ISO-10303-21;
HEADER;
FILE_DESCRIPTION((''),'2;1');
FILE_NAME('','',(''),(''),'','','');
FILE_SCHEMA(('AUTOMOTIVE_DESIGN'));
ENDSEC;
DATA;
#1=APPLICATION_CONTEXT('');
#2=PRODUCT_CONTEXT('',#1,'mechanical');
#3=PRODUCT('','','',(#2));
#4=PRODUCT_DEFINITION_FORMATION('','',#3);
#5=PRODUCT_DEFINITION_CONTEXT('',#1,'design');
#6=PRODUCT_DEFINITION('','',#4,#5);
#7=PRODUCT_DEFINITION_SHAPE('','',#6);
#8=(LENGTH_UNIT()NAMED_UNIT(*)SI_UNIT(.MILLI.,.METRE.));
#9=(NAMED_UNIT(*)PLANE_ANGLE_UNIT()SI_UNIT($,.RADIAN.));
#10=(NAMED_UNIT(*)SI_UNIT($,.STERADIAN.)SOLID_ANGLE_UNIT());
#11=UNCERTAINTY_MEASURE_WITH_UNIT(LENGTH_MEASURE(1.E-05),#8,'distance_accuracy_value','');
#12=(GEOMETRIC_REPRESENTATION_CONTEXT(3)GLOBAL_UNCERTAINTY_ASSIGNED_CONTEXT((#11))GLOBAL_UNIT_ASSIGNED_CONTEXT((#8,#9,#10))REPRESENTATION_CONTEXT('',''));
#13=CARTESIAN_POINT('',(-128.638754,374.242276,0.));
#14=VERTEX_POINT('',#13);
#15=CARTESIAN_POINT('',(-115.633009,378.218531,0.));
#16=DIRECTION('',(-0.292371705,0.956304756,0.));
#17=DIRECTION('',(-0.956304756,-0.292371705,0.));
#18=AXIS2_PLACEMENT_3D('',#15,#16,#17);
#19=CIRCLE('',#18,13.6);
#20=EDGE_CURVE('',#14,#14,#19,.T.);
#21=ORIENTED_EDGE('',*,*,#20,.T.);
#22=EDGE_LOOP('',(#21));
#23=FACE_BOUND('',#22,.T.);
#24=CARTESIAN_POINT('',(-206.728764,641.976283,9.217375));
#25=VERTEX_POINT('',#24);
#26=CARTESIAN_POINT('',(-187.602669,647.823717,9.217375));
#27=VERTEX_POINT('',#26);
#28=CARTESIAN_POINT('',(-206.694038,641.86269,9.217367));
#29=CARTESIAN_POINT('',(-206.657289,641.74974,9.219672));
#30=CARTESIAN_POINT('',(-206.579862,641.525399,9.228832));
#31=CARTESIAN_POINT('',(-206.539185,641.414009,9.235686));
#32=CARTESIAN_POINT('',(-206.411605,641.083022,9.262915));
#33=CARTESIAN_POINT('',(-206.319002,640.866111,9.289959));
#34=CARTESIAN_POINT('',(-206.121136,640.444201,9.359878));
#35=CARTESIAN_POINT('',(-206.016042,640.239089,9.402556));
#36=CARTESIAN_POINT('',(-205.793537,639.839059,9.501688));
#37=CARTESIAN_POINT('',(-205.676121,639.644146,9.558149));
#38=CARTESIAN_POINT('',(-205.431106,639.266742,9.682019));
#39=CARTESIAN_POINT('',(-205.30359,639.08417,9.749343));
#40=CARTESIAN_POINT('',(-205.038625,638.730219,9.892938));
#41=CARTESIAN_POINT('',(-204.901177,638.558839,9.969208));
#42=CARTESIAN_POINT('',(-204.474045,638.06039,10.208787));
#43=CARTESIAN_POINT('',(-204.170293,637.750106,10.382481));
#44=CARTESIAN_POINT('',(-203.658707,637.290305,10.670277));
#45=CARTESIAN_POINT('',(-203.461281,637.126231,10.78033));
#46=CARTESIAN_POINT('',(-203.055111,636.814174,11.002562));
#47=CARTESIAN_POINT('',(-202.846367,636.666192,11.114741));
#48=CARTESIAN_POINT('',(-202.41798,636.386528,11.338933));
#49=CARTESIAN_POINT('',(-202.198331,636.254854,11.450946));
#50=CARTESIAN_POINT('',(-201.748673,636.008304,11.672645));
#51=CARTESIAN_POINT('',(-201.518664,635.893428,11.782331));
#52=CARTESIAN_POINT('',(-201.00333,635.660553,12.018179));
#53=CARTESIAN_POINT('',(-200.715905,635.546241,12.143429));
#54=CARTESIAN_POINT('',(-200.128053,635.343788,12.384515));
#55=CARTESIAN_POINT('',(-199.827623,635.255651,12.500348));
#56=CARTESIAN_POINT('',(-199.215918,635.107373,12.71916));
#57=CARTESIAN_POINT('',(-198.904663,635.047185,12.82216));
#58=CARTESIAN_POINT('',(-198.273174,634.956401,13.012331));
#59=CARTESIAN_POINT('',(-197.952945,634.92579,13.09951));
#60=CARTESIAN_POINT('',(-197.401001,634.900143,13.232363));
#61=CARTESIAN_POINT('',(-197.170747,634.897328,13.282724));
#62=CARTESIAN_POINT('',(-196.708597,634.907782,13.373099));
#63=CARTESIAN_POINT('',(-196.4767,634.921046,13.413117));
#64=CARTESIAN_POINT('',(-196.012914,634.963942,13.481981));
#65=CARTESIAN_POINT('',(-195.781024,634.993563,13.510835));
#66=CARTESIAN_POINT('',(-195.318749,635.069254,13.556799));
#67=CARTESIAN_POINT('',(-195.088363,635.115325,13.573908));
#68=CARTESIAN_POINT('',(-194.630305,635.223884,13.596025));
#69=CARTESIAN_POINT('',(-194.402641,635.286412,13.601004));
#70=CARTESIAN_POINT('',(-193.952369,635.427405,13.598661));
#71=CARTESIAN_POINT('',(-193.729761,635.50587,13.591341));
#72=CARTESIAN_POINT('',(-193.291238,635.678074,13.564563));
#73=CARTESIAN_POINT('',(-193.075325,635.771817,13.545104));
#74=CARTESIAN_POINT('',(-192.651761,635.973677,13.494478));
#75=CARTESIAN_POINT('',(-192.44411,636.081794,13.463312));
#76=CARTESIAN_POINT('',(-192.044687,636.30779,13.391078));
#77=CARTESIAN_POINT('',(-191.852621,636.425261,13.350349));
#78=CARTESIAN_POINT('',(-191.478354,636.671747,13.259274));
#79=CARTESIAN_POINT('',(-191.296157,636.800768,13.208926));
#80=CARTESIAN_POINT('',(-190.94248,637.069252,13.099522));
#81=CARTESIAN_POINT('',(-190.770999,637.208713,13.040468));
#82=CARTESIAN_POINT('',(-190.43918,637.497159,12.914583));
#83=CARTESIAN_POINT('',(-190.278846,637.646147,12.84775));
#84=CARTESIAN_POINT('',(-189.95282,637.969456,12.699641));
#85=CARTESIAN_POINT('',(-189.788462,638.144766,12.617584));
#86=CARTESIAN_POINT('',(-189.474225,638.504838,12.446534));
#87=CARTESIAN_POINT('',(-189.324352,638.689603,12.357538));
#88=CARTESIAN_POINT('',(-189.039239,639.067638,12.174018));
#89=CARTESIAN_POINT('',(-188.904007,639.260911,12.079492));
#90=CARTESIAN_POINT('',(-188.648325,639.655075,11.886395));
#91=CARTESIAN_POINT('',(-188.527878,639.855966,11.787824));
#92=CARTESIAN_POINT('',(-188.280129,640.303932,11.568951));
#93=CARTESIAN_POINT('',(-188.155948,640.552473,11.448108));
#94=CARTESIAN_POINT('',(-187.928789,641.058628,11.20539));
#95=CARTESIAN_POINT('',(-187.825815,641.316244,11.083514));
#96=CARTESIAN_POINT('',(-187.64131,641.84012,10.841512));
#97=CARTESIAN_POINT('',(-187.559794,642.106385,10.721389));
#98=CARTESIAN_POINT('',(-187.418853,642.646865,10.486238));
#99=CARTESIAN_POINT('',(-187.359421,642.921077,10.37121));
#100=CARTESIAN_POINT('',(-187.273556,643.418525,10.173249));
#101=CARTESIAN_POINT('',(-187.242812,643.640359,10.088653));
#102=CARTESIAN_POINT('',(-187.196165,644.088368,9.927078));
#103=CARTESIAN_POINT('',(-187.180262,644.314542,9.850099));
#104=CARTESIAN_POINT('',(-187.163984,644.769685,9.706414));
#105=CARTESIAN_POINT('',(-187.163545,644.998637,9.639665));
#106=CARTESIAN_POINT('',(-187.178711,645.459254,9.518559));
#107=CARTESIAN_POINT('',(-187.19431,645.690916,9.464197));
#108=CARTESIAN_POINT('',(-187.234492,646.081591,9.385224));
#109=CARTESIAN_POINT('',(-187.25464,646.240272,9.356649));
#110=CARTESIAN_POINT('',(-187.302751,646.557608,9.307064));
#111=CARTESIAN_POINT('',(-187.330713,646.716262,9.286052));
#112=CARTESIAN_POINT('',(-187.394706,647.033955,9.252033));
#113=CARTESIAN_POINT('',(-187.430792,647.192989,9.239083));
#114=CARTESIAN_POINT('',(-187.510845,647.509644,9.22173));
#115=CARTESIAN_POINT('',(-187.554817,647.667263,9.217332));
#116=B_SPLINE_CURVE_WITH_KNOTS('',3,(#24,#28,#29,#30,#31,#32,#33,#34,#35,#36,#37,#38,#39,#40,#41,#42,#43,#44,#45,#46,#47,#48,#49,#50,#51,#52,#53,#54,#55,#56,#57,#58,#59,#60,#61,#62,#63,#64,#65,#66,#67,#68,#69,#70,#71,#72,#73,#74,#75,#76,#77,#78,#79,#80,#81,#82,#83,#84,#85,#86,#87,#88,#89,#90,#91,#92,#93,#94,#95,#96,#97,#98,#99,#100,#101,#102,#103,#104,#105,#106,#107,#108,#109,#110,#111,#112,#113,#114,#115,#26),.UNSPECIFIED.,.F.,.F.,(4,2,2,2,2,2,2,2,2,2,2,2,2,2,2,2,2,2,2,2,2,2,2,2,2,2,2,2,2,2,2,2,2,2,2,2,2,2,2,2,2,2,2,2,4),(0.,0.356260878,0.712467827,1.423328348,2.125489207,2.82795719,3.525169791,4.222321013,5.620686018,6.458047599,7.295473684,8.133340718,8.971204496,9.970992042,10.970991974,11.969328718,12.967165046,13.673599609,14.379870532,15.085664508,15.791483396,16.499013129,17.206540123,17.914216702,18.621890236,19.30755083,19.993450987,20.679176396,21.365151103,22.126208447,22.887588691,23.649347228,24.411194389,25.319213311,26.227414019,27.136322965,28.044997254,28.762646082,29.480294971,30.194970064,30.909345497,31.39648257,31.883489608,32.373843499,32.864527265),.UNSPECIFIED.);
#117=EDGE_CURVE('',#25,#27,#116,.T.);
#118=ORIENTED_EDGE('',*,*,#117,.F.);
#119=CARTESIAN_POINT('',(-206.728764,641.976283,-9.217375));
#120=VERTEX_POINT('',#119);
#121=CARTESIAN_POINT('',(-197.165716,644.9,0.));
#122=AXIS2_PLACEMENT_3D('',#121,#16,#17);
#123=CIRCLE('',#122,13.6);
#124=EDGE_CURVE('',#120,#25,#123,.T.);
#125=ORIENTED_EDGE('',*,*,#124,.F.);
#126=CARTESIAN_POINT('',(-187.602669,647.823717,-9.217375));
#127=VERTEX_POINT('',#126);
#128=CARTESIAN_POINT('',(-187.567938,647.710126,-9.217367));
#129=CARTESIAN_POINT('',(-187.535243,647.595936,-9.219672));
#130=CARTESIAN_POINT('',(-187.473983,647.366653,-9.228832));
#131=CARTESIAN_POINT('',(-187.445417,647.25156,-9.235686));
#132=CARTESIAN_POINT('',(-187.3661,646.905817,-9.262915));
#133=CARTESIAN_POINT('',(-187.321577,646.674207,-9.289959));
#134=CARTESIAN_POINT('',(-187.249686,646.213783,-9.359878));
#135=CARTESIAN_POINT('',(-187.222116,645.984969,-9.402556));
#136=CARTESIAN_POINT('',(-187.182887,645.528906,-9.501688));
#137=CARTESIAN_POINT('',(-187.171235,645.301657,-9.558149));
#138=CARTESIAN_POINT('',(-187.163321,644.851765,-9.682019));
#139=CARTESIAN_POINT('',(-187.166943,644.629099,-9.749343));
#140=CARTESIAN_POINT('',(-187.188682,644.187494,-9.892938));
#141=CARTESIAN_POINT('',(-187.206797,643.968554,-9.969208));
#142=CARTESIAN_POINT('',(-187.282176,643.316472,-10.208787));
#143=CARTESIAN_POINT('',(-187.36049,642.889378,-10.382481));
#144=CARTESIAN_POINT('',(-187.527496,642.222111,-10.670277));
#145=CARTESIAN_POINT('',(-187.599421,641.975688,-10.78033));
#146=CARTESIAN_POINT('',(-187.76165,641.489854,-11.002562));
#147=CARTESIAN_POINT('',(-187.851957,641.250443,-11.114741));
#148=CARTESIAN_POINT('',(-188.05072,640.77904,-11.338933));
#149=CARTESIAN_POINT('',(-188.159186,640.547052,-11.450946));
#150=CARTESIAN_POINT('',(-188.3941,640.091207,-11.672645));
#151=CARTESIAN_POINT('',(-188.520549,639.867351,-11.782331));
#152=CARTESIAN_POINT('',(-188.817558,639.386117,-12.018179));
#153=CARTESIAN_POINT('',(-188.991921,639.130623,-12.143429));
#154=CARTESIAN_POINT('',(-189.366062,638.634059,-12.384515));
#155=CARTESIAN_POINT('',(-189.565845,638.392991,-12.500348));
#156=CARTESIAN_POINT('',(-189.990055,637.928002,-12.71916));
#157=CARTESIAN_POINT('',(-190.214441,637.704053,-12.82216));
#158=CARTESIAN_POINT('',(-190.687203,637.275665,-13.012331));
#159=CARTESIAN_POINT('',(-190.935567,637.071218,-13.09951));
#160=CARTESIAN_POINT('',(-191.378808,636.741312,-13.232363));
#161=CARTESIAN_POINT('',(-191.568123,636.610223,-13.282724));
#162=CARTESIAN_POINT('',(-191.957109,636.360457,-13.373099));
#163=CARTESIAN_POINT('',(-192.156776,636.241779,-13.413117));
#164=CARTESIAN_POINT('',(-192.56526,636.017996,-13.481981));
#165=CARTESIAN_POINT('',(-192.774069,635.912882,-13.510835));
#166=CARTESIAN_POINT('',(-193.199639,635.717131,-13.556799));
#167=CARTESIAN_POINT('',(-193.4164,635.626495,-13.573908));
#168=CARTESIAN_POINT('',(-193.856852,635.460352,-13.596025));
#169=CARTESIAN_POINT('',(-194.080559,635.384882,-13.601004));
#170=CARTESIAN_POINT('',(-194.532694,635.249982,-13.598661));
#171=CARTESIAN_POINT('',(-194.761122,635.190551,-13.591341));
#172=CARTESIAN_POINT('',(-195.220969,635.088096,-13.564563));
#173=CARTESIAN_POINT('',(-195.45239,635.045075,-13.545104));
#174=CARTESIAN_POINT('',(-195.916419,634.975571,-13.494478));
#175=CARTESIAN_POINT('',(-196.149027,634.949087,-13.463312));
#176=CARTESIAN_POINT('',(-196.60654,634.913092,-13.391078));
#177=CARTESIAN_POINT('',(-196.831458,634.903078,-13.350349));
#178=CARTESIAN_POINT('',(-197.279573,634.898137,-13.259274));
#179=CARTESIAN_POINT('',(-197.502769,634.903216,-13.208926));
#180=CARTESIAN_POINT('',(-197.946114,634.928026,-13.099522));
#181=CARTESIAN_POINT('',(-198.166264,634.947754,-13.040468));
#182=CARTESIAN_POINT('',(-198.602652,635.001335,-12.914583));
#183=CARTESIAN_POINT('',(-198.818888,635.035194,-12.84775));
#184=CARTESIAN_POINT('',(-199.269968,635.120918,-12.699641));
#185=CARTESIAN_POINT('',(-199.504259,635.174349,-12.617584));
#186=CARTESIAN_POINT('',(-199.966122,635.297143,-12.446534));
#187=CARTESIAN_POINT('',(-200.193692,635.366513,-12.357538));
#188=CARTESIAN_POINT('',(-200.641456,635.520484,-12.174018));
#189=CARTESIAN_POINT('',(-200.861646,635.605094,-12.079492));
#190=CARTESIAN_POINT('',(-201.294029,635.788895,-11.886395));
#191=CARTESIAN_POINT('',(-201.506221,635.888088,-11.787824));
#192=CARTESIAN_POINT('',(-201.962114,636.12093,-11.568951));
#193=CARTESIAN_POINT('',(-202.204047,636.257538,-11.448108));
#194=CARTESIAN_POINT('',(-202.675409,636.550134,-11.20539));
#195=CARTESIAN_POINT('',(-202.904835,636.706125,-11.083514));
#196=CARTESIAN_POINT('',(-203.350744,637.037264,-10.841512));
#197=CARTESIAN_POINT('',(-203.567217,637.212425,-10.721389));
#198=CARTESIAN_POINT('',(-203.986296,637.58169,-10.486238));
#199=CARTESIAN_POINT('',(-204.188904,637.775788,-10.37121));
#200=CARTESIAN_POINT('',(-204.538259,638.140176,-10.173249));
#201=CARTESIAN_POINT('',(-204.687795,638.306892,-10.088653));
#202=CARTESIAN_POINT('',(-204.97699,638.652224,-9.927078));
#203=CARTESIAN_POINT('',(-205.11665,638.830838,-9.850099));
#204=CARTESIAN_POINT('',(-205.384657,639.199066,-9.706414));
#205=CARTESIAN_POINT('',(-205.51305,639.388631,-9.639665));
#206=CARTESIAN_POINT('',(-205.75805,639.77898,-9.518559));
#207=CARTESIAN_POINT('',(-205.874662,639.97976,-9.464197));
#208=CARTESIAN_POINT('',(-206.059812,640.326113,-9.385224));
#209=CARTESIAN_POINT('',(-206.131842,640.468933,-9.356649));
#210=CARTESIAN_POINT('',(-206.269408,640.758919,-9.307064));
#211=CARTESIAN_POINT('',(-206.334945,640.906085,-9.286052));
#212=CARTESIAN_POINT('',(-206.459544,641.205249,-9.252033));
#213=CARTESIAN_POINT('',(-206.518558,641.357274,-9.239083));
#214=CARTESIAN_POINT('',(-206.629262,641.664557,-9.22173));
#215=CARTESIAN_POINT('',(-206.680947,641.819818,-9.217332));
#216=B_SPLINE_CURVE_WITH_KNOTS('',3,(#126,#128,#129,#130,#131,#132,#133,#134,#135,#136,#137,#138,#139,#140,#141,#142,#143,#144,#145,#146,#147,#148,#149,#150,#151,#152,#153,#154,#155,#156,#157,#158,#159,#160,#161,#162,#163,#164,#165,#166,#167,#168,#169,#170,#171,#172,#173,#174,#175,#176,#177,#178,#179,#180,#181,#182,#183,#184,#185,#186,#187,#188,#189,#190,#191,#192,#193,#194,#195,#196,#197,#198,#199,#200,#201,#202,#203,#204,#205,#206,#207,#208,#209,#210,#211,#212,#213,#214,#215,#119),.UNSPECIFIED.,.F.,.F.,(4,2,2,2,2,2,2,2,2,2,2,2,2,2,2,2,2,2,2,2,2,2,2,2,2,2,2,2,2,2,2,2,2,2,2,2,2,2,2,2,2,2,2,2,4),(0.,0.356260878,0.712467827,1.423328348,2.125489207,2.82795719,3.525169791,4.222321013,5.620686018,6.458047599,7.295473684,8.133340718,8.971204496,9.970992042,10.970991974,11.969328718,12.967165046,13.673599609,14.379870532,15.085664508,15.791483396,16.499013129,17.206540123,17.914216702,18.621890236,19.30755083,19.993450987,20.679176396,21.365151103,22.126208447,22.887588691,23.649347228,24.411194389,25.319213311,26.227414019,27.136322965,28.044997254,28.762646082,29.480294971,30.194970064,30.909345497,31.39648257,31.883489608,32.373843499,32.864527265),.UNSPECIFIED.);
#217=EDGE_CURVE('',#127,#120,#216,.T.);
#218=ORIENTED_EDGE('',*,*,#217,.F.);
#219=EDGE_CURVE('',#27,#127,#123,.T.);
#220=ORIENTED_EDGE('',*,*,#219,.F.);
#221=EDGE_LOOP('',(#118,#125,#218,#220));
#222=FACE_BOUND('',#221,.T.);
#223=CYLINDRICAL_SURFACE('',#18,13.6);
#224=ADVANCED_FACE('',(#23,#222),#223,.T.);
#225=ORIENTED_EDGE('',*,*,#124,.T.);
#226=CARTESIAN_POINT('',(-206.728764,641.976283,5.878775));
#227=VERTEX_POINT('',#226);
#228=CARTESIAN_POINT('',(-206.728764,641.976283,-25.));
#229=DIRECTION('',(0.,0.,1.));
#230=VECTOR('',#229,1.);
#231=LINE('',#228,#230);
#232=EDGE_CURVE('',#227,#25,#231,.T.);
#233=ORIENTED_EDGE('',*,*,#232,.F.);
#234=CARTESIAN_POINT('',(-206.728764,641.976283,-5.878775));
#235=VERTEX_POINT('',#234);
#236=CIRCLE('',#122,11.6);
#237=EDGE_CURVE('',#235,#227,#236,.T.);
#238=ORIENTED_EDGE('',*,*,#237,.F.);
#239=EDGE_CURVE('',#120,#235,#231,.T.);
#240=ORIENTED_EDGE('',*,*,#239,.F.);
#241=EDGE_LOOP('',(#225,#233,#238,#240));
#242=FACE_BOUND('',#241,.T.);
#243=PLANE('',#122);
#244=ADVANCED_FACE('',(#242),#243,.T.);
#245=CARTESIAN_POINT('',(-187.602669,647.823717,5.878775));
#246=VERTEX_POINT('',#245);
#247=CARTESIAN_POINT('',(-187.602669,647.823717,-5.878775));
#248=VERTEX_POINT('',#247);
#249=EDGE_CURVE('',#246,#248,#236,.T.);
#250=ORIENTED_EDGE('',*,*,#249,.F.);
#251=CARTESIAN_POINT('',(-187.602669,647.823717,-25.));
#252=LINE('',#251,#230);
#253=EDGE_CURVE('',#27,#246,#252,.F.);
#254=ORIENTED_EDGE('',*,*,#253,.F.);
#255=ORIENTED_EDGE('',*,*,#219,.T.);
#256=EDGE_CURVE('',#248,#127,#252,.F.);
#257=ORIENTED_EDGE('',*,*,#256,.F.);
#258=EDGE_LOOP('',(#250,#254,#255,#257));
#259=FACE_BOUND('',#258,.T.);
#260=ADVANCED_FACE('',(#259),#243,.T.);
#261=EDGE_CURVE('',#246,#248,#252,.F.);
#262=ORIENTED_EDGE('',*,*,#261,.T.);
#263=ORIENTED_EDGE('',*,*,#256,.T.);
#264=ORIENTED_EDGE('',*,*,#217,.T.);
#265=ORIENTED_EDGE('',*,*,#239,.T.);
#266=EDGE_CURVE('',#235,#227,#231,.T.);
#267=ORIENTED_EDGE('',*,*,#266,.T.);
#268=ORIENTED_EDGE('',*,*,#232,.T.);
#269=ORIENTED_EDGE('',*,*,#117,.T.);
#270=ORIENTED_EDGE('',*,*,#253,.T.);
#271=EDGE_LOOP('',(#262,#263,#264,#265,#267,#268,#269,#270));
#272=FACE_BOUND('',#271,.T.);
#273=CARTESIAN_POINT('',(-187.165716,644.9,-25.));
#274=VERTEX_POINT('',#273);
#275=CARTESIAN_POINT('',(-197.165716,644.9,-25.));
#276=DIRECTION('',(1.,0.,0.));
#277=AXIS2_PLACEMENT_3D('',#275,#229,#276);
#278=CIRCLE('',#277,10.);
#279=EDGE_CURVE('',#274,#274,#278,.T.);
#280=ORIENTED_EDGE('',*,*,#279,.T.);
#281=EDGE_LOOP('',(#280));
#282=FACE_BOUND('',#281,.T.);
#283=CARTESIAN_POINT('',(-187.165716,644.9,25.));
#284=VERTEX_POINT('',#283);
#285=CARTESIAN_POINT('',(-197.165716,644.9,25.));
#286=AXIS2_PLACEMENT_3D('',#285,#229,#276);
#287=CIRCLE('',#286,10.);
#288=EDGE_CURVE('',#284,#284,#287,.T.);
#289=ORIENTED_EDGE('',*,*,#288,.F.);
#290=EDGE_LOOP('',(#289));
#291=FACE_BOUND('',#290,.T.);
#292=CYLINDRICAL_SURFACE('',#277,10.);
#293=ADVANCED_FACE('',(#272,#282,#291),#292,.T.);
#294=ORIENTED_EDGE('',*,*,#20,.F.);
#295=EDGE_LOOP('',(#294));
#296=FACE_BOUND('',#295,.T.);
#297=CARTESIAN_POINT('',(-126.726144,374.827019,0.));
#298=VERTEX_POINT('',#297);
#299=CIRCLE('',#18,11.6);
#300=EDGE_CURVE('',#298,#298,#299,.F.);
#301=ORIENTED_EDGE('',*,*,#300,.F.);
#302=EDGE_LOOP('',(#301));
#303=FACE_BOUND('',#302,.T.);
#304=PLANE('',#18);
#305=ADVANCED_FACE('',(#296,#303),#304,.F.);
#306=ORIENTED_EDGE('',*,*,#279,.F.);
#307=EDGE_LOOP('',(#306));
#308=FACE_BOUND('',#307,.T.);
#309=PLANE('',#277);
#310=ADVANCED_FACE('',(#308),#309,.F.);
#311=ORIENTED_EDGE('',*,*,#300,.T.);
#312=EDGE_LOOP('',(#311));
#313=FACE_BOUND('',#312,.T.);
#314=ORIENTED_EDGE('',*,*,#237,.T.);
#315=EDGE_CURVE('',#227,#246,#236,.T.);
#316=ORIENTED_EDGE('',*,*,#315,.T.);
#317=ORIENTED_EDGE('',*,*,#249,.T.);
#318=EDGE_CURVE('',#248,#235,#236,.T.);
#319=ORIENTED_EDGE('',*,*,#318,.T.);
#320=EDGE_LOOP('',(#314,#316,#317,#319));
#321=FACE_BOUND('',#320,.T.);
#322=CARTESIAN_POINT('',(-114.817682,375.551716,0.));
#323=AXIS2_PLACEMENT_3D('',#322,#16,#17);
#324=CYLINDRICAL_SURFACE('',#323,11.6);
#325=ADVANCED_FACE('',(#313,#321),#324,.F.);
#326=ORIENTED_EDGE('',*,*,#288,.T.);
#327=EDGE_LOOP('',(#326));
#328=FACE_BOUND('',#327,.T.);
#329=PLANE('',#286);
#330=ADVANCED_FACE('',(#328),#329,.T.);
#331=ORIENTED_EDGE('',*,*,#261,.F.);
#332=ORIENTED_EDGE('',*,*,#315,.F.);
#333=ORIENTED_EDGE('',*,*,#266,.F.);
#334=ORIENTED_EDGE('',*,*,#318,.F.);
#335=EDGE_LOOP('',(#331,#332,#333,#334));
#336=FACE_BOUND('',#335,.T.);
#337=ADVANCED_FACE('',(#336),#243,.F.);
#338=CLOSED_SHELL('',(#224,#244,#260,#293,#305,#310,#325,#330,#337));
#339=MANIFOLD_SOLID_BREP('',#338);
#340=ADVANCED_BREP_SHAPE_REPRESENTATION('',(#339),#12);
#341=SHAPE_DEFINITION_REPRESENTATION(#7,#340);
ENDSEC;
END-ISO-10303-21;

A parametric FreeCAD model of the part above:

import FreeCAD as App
import Part
import Sketcher

V = App.Vector
Q = App.Units.Quantity

doc = App.newDocument("Part")
body = doc.addObject("PartDesign::Body", "Body")

# Sketch on an angled plane
sketch1 = body.newObject("Sketcher::SketchObject", "Sketch")
sketch1.Placement = App.Placement(V(-115.633009, 378.218531, 0), App.Rotation(V(0.956304756, 0.292371705, 0), V(0, 0, -1), V(-0.292371705, 0.956304756, 0), "ZXY"))
sketch1.addGeometry(Part.Circle(V(0, 0, 0), V(0, 0, 1), 13.6), False)
sketch1.addConstraint([
    Sketcher.Constraint("Coincident", 0, 3, -1, 1),
    Sketcher.Constraint("Diameter", 0, Q("27.2 mm")),
])

# Sketch on an angled plane
sketch2 = body.newObject("Sketcher::SketchObject", "Sketch001")
sketch2.Placement = App.Placement(V(0, 0, 0), App.Rotation(V(-0.292371705, 0.956304756, 0), V(0, 0, 1), V(0.956304756, 0.292371705, 0), "ZXY"))
sketch2.addGeometry(Part.LineSegment(V(395.5, 0, 0), V(674.366614, 0, 0)), False)
sketch2.addConstraint([
    Sketcher.Constraint("Horizontal", 0),
    Sketcher.Constraint("PointOnObject", 0, 1, -1),
    Sketcher.Constraint("DistanceX", -1, 1, 0, 1, Q("395.5 mm")),
    Sketcher.Constraint("DistanceX", 0, 1, 0, 2, Q("278.866614 mm")),
])
doc.recompute()

additivepipe = body.newObject("PartDesign::AdditivePipe", "AdditivePipe")
additivepipe.Profile = sketch1
additivepipe.Spine = (sketch2, ["Edge1"])

# Sketch on XY plane
sketch3 = body.newObject("Sketcher::SketchObject", "Sketch002")
sketch3.AttachmentSupport = (doc.getObject("XY_Plane"), [""])
sketch3.MapMode = "FlatFace"
sketch3.AttachmentOffset = App.Placement(V(0, 0, -25), App.Rotation())
sketch3.addGeometry(Part.Circle(V(-197.165716, 644.9, 0), V(0, 0, 1), 10), False)
sketch3.addConstraint([
    Sketcher.Constraint("Diameter", 0, Q("20 mm")),
    Sketcher.Constraint("DistanceY", -1, 1, 0, 3, Q("644.9 mm")),
    Sketcher.Constraint("DistanceX", 0, 3, -1, 1, Q("197.165716 mm")),
])

# Sketch on XZ plane
sketch4 = body.newObject("Sketcher::SketchObject", "Sketch003")
sketch4.AttachmentSupport = (doc.getObject("XZ_Plane"), [""])
sketch4.MapMode = "FlatFace"
sketch4.AttachmentOffset = App.Placement(V(0, 0, -644.9), App.Rotation())
sketch4.addGeometry(Part.LineSegment(V(-197.165716, -25, 0), V(-197.165716, 25, 0)), False)
sketch4.addConstraint([
    Sketcher.Constraint("Vertical", 0),
    Sketcher.Constraint("DistanceY", 0, 1, 0, 2, Q("50 mm")),
    Sketcher.Constraint("DistanceY", 0, 1, -1, 1, Q("25 mm")),
    Sketcher.Constraint("DistanceX", 0, 1, -1, 1, Q("197.165716 mm")),
])
doc.recompute()

additivepipe2 = body.newObject("PartDesign::AdditivePipe", "AdditivePipe001")
additivepipe2.Profile = sketch3
additivepipe2.Spine = (sketch4, ["Edge1"])

# Sketch on an angled plane
sketch5 = body.newObject("Sketcher::SketchObject", "Sketch004")
sketch5.Placement = App.Placement(V(-115.633009, 378.218531, 0), App.Rotation(V(0.956304756, 0.292371705, 0), V(0, 0, -1), V(-0.292371705, 0.956304756, 0), "ZXY"))
sketch5.addGeometry(Part.Circle(V(0, 0, 0), V(0, 0, 1), 11.6), False)
sketch5.addConstraint([
    Sketcher.Constraint("Coincident", 0, 3, -1, 1),
    Sketcher.Constraint("Diameter", 0, Q("23.2 mm")),
])

# Sketch on an angled plane
sketch6 = body.newObject("Sketcher::SketchObject", "Sketch005")
sketch6.Placement = App.Placement(V(0, 0, 0), App.Rotation(V(-0.292371705, 0.956304756, 0), V(0, 0, 1), V(0.956304756, 0.292371705, 0), "ZXY"))
sketch6.addGeometry(Part.LineSegment(V(395.5, 0, 0), V(674.366614, 0, 0)), False)
sketch6.addConstraint([
    Sketcher.Constraint("Horizontal", 0),
    Sketcher.Constraint("PointOnObject", 0, 1, -1),
    Sketcher.Constraint("DistanceX", -1, 1, 0, 1, Q("395.5 mm")),
    Sketcher.Constraint("DistanceX", 0, 1, 0, 2, Q("278.866614 mm")),
])
doc.recompute()

subtractivepipe = body.newObject("PartDesign::SubtractivePipe", "SubtractivePipe")
subtractivepipe.Profile = sketch5
subtractivepipe.Spine = (sketch6, ["Edge1"])

doc.recompute()
